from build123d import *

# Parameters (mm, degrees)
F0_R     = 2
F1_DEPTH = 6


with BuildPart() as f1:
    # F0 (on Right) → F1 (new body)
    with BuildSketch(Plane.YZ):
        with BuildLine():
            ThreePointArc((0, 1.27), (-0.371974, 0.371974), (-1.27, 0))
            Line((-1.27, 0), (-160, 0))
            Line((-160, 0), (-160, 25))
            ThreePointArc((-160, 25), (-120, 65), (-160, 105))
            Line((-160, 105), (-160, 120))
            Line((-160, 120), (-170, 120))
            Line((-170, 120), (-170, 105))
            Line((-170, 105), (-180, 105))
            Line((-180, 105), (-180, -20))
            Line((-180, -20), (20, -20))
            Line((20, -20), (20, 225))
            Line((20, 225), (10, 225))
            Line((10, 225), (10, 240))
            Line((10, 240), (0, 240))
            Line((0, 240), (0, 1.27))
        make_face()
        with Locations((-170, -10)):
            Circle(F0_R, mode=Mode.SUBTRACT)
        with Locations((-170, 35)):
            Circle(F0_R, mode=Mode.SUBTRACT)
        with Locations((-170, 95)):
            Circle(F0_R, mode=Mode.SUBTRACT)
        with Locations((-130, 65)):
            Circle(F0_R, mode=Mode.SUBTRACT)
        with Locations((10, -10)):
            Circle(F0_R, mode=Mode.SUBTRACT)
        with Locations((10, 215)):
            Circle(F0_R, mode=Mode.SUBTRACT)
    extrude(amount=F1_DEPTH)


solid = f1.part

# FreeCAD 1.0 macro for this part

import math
import FreeCAD as App
import Part
import Sketcher
Q = App.Units.Quantity

doc = App.newDocument("Part")
body = doc.addObject("PartDesign::Body", "Body")

# Sketch on YZ plane
sketch1 = doc.addObject("Sketcher::SketchObject", "Sketch")
body.addObject(sketch1)
sketch1.AttachmentSupport = (doc.YZ_Plane, [""])
sketch1.MapMode = "FlatFace"
sketch1.addGeometry(Part.ArcOfCircle(Part.Circle(App.Vector(-1.3, 1.3, 0), App.Vector(0, 0, 1), 1.3), math.radians(-90), math.radians(0)), False)
sketch1.addGeometry(Part.LineSegment(App.Vector(-1.3, 0, 0), App.Vector(-160, 0, 0)), False)
sketch1.addGeometry(Part.LineSegment(App.Vector(-160, 0, 0), App.Vector(-160, 25, 0)), False)
sketch1.addGeometry(Part.ArcOfCircle(Part.Circle(App.Vector(-160, 65, 0), App.Vector(0, 0, 1), 40), math.radians(-90), math.radians(90)), False)
sketch1.addGeometry(Part.LineSegment(App.Vector(-160, 105, 0), App.Vector(-160, 120, 0)), False)
sketch1.addGeometry(Part.LineSegment(App.Vector(-160, 120, 0), App.Vector(-170, 120, 0)), False)
sketch1.addGeometry(Part.LineSegment(App.Vector(-170, 120, 0), App.Vector(-170, 105, 0)), False)
sketch1.addGeometry(Part.LineSegment(App.Vector(-170, 105, 0), App.Vector(-180, 105, 0)), False)
sketch1.addGeometry(Part.LineSegment(App.Vector(-180, 105, 0), App.Vector(-180, -20, 0)), False)
sketch1.addGeometry(Part.LineSegment(App.Vector(-180, -20, 0), App.Vector(20, -20, 0)), False)
sketch1.addGeometry(Part.LineSegment(App.Vector(20, -20, 0), App.Vector(20, 225, 0)), False)
sketch1.addGeometry(Part.LineSegment(App.Vector(20, 225, 0), App.Vector(10, 225, 0)), False)
sketch1.addGeometry(Part.LineSegment(App.Vector(10, 225, 0), App.Vector(10, 240, 0)), False)
sketch1.addGeometry(Part.LineSegment(App.Vector(10, 240, 0), App.Vector(0, 240, 0)), False)
sketch1.addGeometry(Part.LineSegment(App.Vector(0, 240, 0), App.Vector(0, 1.3, 0)), False)
sketch1.addGeometry(Part.Circle(App.Vector(-170, -10, 0), App.Vector(0, 0, 1), 2), False)
sketch1.addGeometry(Part.Circle(App.Vector(-170, 35, 0), App.Vector(0, 0, 1), 2), False)
sketch1.addGeometry(Part.Circle(App.Vector(-130, 65, 0), App.Vector(0, 0, 1), 2), False)
sketch1.addGeometry(Part.Circle(App.Vector(-170, 95, 0), App.Vector(0, 0, 1), 2), False)
sketch1.addGeometry(Part.Circle(App.Vector(10, -10, 0), App.Vector(0, 0, 1), 2), False)
sketch1.addGeometry(Part.Circle(App.Vector(10, 215, 0), App.Vector(0, 0, 1), 2), False)
sketch1.addConstraint(Sketcher.Constraint("Tangent", 0, 1, 1, 1))
sketch1.addConstraint(Sketcher.Constraint("Coincident", 1, 2, 2, 1))
sketch1.addConstraint(Sketcher.Constraint("Coincident", 2, 2, 3, 1))
sketch1.addConstraint(Sketcher.Constraint("Coincident", 3, 2, 4, 1))
sketch1.addConstraint(Sketcher.Constraint("Coincident", 4, 2, 5, 1))
sketch1.addConstraint(Sketcher.Constraint("Coincident", 5, 2, 6, 1))
sketch1.addConstraint(Sketcher.Constraint("Coincident", 6, 2, 7, 1))
sketch1.addConstraint(Sketcher.Constraint("Coincident", 7, 2, 8, 1))
sketch1.addConstraint(Sketcher.Constraint("Coincident", 8, 2, 9, 1))
sketch1.addConstraint(Sketcher.Constraint("Coincident", 9, 2, 10, 1))
sketch1.addConstraint(Sketcher.Constraint("Coincident", 10, 2, 11, 1))
sketch1.addConstraint(Sketcher.Constraint("Coincident", 11, 2, 12, 1))
sketch1.addConstraint(Sketcher.Constraint("Coincident", 12, 2, 13, 1))
sketch1.addConstraint(Sketcher.Constraint("Coincident", 13, 2, 14, 1))
sketch1.addConstraint(Sketcher.Constraint("Tangent", 14, 2, 0, 2))
sketch1.addConstraint(Sketcher.Constraint("Horizontal", 1))
sketch1.addConstraint(Sketcher.Constraint("Vertical", 2))
sketch1.addConstraint(Sketcher.Constraint("Vertical", 4))
sketch1.addConstraint(Sketcher.Constraint("Horizontal", 5))
sketch1.addConstraint(Sketcher.Constraint("Vertical", 6))
sketch1.addConstraint(Sketcher.Constraint("Horizontal", 7))
sketch1.addConstraint(Sketcher.Constraint("Vertical", 8))
sketch1.addConstraint(Sketcher.Constraint("Horizontal", 9))
sketch1.addConstraint(Sketcher.Constraint("Vertical", 10))
sketch1.addConstraint(Sketcher.Constraint("Horizontal", 11))
sketch1.addConstraint(Sketcher.Constraint("Vertical", 12))
sketch1.addConstraint(Sketcher.Constraint("Horizontal", 13))
sketch1.addConstraint(Sketcher.Constraint("Vertical", 14))
sketch1.addConstraint(Sketcher.Constraint("Equal", 15, 16))
sketch1.addConstraint(Sketcher.Constraint("Equal", 16, 17))
sketch1.addConstraint(Sketcher.Constraint("Equal", 17, 18))
sketch1.addConstraint(Sketcher.Constraint("Equal", 18, 19))
sketch1.addConstraint(Sketcher.Constraint("Equal", 19, 20))
sketch1.addConstraint(Sketcher.Constraint("PointOnObject", 0, 1, -1))
sketch1.addConstraint(Sketcher.Constraint("PointOnObject", 13, 2, -2))
sketch1.addConstraint(Sketcher.Constraint("Horizontal", 3, 3, 17, 3))
sketch1.addConstraint(Sketcher.Constraint("Horizontal", 15, 3, 19, 3))
sketch1.addConstraint(Sketcher.Constraint("Horizontal", 3, 2, 6, 2))
sketch1.addConstraint(Sketcher.Constraint("Vertical", 15, 3, 16, 3))
sketch1.addConstraint(Sketcher.Constraint("Vertical", 16, 3, 18, 3))
sketch1.addConstraint(Sketcher.Constraint("Vertical", 19, 3, 20, 3))
sketch1.addConstraint(Sketcher.Constraint("Vertical", 3, 3, 1, 2))
sketch1.addConstraint(Sketcher.Constraint("Vertical", 2, 2, 3, 2))
sketch1.addConstraint(Sketcher.Constraint("Vertical", 18, 3, 5, 2))
sketch1.addConstraint(Sketcher.Constraint("Vertical", 20, 3, 11, 2))
sketch1.addConstraint(Sketcher.Constraint("Equal", 5, 7))
sketch1.addConstraint(Sketcher.Constraint("Equal", 7, 11))
sketch1.addConstraint(Sketcher.Constraint("Equal", 11, 13))
sketch1.addConstraint(Sketcher.Constraint("Equal", 6, 12))
sketch1.addConstraint(Sketcher.Constraint("Diameter", 15, Q("4 mm")))
sketch1.addConstraint(Sketcher.Constraint("Radius", 3, Q("40 mm")))
sketch1.addConstraint(Sketcher.Constraint("DistanceX", 5, 2, 5, 1, Q("10 mm")))
sketch1.addConstraint(Sketcher.Constraint("DistanceX", 9, 1, 9, 2, Q("200 mm")))
sketch1.addConstraint(Sketcher.Constraint("DistanceY", 2, 1, 2, 2, Q("25 mm")))
sketch1.addConstraint(Sketcher.Constraint("DistanceY", 4, 1, 4, 2, Q("15 mm")))
sketch1.addConstraint(Sketcher.Constraint("DistanceY", 8, 2, 8, 1, Q("125 mm")))
sketch1.addConstraint(Sketcher.Constraint("DistanceY", 10, 1, 10, 2, Q("245 mm")))
sketch1.addConstraint(Sketcher.Constraint("Radius", 0, Q("1.269999 mm")))
sketch1.addConstraint(Sketcher.Constraint("DistanceY", 15, 3, -1, 1, Q("10 mm")))
sketch1.addConstraint(Sketcher.Constraint("DistanceY", -1, 1, 16, 3, Q("35 mm")))
sketch1.addConstraint(Sketcher.Constraint("DistanceX", 17, 3, -1, 1, Q("130 mm")))
sketch1.addConstraint(Sketcher.Constraint("DistanceY", -1, 1, 18, 3, Q("95 mm")))
sketch1.addConstraint(Sketcher.Constraint("DistanceY", -1, 1, 20, 3, Q("215 mm")))
pad1 = doc.addObject("PartDesign::Pad", "Pad")
body.addObject(pad1)
pad1.Profile = sketch1
pad1.Length = 6

doc.recompute()
